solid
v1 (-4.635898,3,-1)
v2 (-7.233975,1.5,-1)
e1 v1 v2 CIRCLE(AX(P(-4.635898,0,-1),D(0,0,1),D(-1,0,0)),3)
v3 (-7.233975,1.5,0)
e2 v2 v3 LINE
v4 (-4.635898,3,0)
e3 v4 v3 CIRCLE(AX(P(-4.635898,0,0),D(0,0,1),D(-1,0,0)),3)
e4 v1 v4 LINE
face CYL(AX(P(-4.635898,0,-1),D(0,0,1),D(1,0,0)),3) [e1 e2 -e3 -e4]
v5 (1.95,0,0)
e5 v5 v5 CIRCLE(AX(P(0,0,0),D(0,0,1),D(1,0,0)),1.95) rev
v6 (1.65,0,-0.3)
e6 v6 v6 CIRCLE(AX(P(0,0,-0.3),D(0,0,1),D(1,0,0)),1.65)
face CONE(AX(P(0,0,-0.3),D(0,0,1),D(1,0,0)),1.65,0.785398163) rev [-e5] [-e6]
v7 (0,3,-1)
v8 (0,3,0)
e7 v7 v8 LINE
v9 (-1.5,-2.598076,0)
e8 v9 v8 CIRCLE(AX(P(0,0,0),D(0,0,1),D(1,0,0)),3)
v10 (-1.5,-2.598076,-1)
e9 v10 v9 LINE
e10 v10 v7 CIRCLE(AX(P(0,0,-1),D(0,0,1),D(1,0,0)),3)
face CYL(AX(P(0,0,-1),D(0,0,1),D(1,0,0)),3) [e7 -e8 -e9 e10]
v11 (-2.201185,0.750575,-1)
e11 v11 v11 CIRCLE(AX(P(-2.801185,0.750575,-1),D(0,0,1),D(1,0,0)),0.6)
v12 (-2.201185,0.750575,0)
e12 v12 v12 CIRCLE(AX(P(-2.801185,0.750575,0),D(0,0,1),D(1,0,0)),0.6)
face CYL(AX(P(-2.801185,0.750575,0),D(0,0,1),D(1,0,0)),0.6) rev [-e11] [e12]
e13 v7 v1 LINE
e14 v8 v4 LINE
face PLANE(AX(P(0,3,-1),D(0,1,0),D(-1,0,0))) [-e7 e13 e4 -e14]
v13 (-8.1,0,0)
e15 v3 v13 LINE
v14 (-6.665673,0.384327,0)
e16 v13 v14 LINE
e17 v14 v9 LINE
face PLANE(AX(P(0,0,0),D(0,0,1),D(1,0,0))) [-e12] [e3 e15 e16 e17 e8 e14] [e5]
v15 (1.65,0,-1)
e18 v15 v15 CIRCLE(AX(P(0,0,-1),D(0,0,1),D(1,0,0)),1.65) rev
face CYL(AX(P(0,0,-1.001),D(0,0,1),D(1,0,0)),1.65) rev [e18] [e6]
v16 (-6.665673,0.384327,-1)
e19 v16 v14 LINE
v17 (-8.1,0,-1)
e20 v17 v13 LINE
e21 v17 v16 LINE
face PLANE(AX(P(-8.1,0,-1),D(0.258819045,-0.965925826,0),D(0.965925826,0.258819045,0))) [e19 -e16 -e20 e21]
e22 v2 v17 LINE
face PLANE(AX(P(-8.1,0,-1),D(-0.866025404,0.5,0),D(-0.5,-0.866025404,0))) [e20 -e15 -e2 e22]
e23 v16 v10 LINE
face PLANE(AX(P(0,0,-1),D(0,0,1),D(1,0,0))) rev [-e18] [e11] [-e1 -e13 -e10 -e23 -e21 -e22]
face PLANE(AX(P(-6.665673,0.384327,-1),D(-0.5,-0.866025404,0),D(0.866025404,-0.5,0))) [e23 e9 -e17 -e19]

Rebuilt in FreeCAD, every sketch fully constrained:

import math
import FreeCAD as App
import Part
import Sketcher

V = App.Vector
Q = App.Units.Quantity


def edges_at(feature, points):
    """Names of the edges that pass closest to the given points."""
    edges = feature.Shape.Edges
    near = lambda p: min(range(len(edges)), key=lambda i: edges[i].distToShape(Part.Vertex(*p))[0])
    return sorted({f"Edge{near(p) + 1}" for p in points})

doc = App.newDocument("Part")
body = doc.addObject("PartDesign::Body", "Body")

# Sketch on XY plane
sketch1 = body.newObject("Sketcher::SketchObject", "Sketch")
sketch1.AttachmentSupport = (doc.getObject("XY_Plane"), [""])
sketch1.MapMode = "FlatFace"
sketch1.addGeometry(Part.LineSegment(V(0, 3, 0), V(-4.6, 3, 0)), False)
sketch1.addGeometry(Part.ArcOfCircle(Part.Circle(V(-4.6, 0, 0), V(0, 0, 1), 3), math.radians(90), math.radians(150)), False)
sketch1.addGeometry(Part.LineSegment(V(-7.2, 1.5, 0), V(-8.1, 0, 0)), False)
sketch1.addGeometry(Part.LineSegment(V(-8.1, 0, 0), V(-6.7, 0.4, 0)), False)
sketch1.addGeometry(Part.LineSegment(V(-6.7, 0.4, 0), V(-1.5, -2.6, 0)), False)
sketch1.addGeometry(Part.ArcOfCircle(Part.Circle(V(0, 0, 0), V(0, 0, 1), 3), math.radians(-120), math.radians(90)), False)
sketch1.addConstraint(Sketcher.Constraint("Tangent", 0, 2, 1, 1))
sketch1.addConstraint(Sketcher.Constraint("Tangent", 1, 2, 2, 1))
sketch1.addConstraint(Sketcher.Constraint("Coincident", 2, 2, 3, 1))
sketch1.addConstraint(Sketcher.Constraint("Coincident", 3, 2, 4, 1))
sketch1.addConstraint(Sketcher.Constraint("Tangent", 4, 2, 5, 1))
sketch1.addConstraint(Sketcher.Constraint("Tangent", 5, 2, 0, 1))
sketch1.addConstraint(Sketcher.Constraint("Horizontal", 0))
sketch1.addConstraint(Sketcher.Constraint("Coincident", 5, 3, -1, 1))
sketch1.addConstraint(Sketcher.Constraint("Equal", 1, 5))
sketch1.addConstraint(Sketcher.Constraint("PointOnObject", 2, 2, -1))
sketch1.addConstraint(Sketcher.Constraint("Perpendicular", 2, 4))
sketch1.addConstraint(Sketcher.Constraint("Radius", 1, 3.0))
sketch1.addConstraint(Sketcher.Constraint("Angle", 2, Q("-120 deg")))
sketch1.addConstraint(Sketcher.Constraint("Angle", 3, Q("15 deg")))
sketch1.addConstraint(Sketcher.Constraint("DistanceX", 2, 2, -1, 1, 8.1))
pad1 = body.newObject("PartDesign::Pad", "Pad")
pad1.Profile = sketch1
pad1.Length = 1
pad1.Reversed = True

# Sketch on XY plane
sketch2 = body.newObject("Sketcher::SketchObject", "Sketch001")
sketch2.AttachmentSupport = (doc.getObject("XY_Plane"), [""])
sketch2.MapMode = "FlatFace"
sketch2.addGeometry(Part.Circle(V(0, 0, 0), V(0, 0, 1), 1.6), False)
sketch2.addConstraint(Sketcher.Constraint("Coincident", 0, 3, -1, 1))
sketch2.addConstraint(Sketcher.Constraint("Diameter", 0, 3.3))
pocket1 = body.newObject("PartDesign::Pocket", "Pocket")
pocket1.Profile = sketch2
pocket1.Type = "UpToFirst"
doc.recompute()

chamfer = body.newObject("PartDesign::Chamfer", "Chamfer")
chamfer.Base = (pocket1, edges_at(pocket1, [(-1.65, 0, 0)]))
chamfer.Size = 0.3

# Sketch on XY plane
sketch3 = body.newObject("Sketcher::SketchObject", "Sketch002")
sketch3.AttachmentSupport = (doc.getObject("XY_Plane"), [""])
sketch3.MapMode = "FlatFace"
sketch3.addGeometry(Part.Circle(V(-2.8, 0.8, 0), V(0, 0, 1), 0.6), False)
sketch3.addConstraint(Sketcher.Constraint("Diameter", 0, 1.2))
sketch3.addConstraint(Sketcher.Constraint("DistanceX", 0, 3, -1, 1, 2.801185))
sketch3.addConstraint(Sketcher.Constraint("DistanceY", -1, 1, 0, 3, 0.750575))
doc.recompute()
hole = body.newObject("PartDesign::Hole", "Hole")
hole.Profile = sketch3
hole.ThreadType = "None"
hole.Diameter = 1.2
hole.DepthType = "ThroughAll"

doc.recompute()
